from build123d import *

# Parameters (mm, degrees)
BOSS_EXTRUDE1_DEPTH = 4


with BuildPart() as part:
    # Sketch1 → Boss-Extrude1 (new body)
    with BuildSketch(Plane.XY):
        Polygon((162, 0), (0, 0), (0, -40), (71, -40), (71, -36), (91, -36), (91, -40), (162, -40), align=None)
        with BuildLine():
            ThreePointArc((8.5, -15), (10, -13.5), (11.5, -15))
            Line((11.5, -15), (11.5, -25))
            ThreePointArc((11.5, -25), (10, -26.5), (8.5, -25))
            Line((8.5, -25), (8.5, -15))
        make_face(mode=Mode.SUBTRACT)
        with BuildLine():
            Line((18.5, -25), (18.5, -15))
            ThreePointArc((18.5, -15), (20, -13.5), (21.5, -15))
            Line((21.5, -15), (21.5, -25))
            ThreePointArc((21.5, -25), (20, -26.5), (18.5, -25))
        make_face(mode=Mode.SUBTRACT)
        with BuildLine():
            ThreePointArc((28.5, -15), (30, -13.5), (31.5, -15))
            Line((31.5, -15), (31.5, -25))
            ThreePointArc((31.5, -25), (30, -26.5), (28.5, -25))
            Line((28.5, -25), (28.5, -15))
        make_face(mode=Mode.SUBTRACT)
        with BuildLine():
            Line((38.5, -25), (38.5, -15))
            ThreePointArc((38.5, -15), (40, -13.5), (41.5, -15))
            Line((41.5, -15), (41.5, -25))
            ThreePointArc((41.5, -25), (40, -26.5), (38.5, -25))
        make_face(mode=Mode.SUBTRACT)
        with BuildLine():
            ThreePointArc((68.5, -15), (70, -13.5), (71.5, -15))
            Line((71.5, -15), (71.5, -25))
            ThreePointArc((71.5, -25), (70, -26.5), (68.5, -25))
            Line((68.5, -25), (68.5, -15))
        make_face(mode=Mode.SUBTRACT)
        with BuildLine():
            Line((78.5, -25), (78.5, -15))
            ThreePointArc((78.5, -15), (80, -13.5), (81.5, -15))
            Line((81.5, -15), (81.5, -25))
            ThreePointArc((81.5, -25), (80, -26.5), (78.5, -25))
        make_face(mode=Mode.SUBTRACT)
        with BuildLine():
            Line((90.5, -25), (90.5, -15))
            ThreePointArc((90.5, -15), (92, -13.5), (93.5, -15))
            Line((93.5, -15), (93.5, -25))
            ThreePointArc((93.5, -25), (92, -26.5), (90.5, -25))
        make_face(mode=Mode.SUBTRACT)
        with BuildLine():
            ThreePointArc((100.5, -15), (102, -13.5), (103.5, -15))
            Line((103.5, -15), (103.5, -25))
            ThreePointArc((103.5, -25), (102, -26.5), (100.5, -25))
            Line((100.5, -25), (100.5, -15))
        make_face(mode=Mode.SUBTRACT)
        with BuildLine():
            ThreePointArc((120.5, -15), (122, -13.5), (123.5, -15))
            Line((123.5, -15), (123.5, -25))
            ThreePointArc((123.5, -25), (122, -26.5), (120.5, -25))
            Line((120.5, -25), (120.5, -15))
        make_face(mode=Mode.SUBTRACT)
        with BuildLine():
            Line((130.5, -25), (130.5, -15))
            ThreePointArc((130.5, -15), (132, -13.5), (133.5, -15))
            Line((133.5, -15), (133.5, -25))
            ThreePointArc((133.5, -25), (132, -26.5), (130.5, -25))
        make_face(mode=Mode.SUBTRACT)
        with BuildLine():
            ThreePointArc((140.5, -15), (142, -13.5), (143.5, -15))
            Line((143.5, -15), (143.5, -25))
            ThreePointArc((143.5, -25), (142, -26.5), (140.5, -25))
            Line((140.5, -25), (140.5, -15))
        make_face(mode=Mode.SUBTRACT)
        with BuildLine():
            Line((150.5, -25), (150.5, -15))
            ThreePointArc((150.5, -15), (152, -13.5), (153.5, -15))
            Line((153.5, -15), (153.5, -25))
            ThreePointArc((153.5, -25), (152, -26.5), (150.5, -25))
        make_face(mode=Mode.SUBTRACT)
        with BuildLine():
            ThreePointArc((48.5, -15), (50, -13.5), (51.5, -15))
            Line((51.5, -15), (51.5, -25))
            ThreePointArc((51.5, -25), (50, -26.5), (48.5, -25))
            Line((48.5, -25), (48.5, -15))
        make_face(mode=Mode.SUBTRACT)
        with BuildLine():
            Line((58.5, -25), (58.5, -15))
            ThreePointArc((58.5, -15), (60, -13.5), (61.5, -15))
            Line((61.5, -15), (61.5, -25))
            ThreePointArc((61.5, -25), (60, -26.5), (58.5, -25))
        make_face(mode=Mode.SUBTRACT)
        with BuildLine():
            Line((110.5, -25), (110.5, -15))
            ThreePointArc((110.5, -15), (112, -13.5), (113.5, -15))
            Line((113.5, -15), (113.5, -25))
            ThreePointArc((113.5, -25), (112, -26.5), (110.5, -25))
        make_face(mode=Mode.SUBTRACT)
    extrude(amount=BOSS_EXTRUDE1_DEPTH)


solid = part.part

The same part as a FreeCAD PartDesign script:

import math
import FreeCAD as App
import Part
import Sketcher

V = App.Vector
Q = App.Units.Quantity

doc = App.newDocument("Part")
body = doc.addObject("PartDesign::Body", "Body")

# Sketch on XY plane
sketch1 = body.newObject("Sketcher::SketchObject", "Sketch")
sketch1.AttachmentSupport = (doc.getObject("XY_Plane"), [""])
sketch1.MapMode = "FlatFace"
sketch1.addGeometry(Part.LineSegment(V(162, 0, 0), V(0, 0, 0)), False)
sketch1.addGeometry(Part.LineSegment(V(0, 0, 0), V(0, -40, 0)), False)
sketch1.addGeometry(Part.LineSegment(V(0, -40, 0), V(71, -40, 0)), False)
sketch1.addGeometry(Part.LineSegment(V(71, -40, 0), V(71, -36, 0)), False)
sketch1.addGeometry(Part.LineSegment(V(71, -36, 0), V(91, -36, 0)), False)
sketch1.addGeometry(Part.LineSegment(V(91, -36, 0), V(91, -40, 0)), False)
sketch1.addGeometry(Part.LineSegment(V(91, -40, 0), V(162, -40, 0)), False)
sketch1.addGeometry(Part.LineSegment(V(162, -40, 0), V(162, 0, 0)), False)
sketch1.addGeometry(Part.LineSegment(V(8.5, -25, 0), V(8.5, -15, 0)), False)
sketch1.addGeometry(Part.ArcOfCircle(Part.Circle(V(10, -15, 0), V(0, 0, 1), 1.5), math.radians(0), math.radians(180)), False)
sketch1.addGeometry(Part.LineSegment(V(11.5, -15, 0), V(11.5, -25, 0)), False)
sketch1.addGeometry(Part.ArcOfCircle(Part.Circle(V(10, -25, 0), V(0, 0, 1), 1.5), math.radians(180), math.radians(360)), False)
sketch1.addGeometry(Part.ArcOfCircle(Part.Circle(V(20, -25, 0), V(0, 0, 1), 1.5), math.radians(180), math.radians(360)), False)
sketch1.addGeometry(Part.LineSegment(V(18.5, -25, 0), V(18.5, -15, 0)), False)
sketch1.addGeometry(Part.ArcOfCircle(Part.Circle(V(20, -15, 0), V(0, 0, 1), 1.5), math.radians(0), math.radians(180)), False)
sketch1.addGeometry(Part.LineSegment(V(21.5, -15, 0), V(21.5, -25, 0)), False)
sketch1.addGeometry(Part.LineSegment(V(28.5, -25, 0), V(28.5, -15, 0)), False)
sketch1.addGeometry(Part.ArcOfCircle(Part.Circle(V(30, -15, 0), V(0, 0, 1), 1.5), math.radians(0), math.radians(180)), False)
sketch1.addGeometry(Part.LineSegment(V(31.5, -15, 0), V(31.5, -25, 0)), False)
sketch1.addGeometry(Part.ArcOfCircle(Part.Circle(V(30, -25, 0), V(0, 0, 1), 1.5), math.radians(180), math.radians(360)), False)
sketch1.addGeometry(Part.ArcOfCircle(Part.Circle(V(40, -25, 0), V(0, 0, 1), 1.5), math.radians(180), math.radians(360)), False)
sketch1.addGeometry(Part.LineSegment(V(38.5, -25, 0), V(38.5, -15, 0)), False)
sketch1.addGeometry(Part.ArcOfCircle(Part.Circle(V(40, -15, 0), V(0, 0, 1), 1.5), math.radians(0), math.radians(180)), False)
sketch1.addGeometry(Part.LineSegment(V(41.5, -15, 0), V(41.5, -25, 0)), False)
sketch1.addGeometry(Part.LineSegment(V(48.5, -25, 0), V(48.5, -15, 0)), False)
sketch1.addGeometry(Part.ArcOfCircle(Part.Circle(V(50, -15, 0), V(0, 0, 1), 1.5), math.radians(0), math.radians(180)), False)
sketch1.addGeometry(Part.LineSegment(V(51.5, -15, 0), V(51.5, -25, 0)), False)
sketch1.addGeometry(Part.ArcOfCircle(Part.Circle(V(50, -25, 0), V(0, 0, 1), 1.5), math.radians(180), math.radians(360)), False)
sketch1.addGeometry(Part.ArcOfCircle(Part.Circle(V(60, -25, 0), V(0, 0, 1), 1.5), math.radians(180), math.radians(360)), False)
sketch1.addGeometry(Part.LineSegment(V(58.5, -25, 0), V(58.5, -15, 0)), False)
sketch1.addGeometry(Part.ArcOfCircle(Part.Circle(V(60, -15, 0), V(0, 0, 1), 1.5), math.radians(0), math.radians(180)), False)
sketch1.addGeometry(Part.LineSegment(V(61.5, -15, 0), V(61.5, -25, 0)), False)
sketch1.addGeometry(Part.LineSegment(V(68.5, -25, 0), V(68.5, -15, 0)), False)
sketch1.addGeometry(Part.ArcOfCircle(Part.Circle(V(70, -15, 0), V(0, 0, 1), 1.5), math.radians(0), math.radians(180)), False)
sketch1.addGeometry(Part.LineSegment(V(71.5, -15, 0), V(71.5, -25, 0)), False)
sketch1.addGeometry(Part.ArcOfCircle(Part.Circle(V(70, -25, 0), V(0, 0, 1), 1.5), math.radians(180), math.radians(360)), False)
sketch1.addGeometry(Part.ArcOfCircle(Part.Circle(V(80, -25, 0), V(0, 0, 1), 1.5), math.radians(180), math.radians(360)), False)
sketch1.addGeometry(Part.LineSegment(V(78.5, -25, 0), V(78.5, -15, 0)), False)
sketch1.addGeometry(Part.ArcOfCircle(Part.Circle(V(80, -15, 0), V(0, 0, 1), 1.5), math.radians(0), math.radians(180)), False)
sketch1.addGeometry(Part.LineSegment(V(81.5, -15, 0), V(81.5, -25, 0)), False)
sketch1.addGeometry(Part.ArcOfCircle(Part.Circle(V(92, -25, 0), V(0, 0, 1), 1.5), math.radians(180), math.radians(360)), False)
sketch1.addGeometry(Part.LineSegment(V(90.5, -25, 0), V(90.5, -15, 0)), False)
sketch1.addGeometry(Part.ArcOfCircle(Part.Circle(V(92, -15, 0), V(0, 0, 1), 1.5), math.radians(0), math.radians(180)), False)
sketch1.addGeometry(Part.LineSegment(V(93.5, -15, 0), V(93.5, -25, 0)), False)
sketch1.addGeometry(Part.LineSegment(V(100.5, -25, 0), V(100.5, -15, 0)), False)
sketch1.addGeometry(Part.ArcOfCircle(Part.Circle(V(102, -15, 0), V(0, 0, 1), 1.5), math.radians(0), math.radians(180)), False)
sketch1.addGeometry(Part.LineSegment(V(103.5, -15, 0), V(103.5, -25, 0)), False)
sketch1.addGeometry(Part.ArcOfCircle(Part.Circle(V(102, -25, 0), V(0, 0, 1), 1.5), math.radians(180), math.radians(360)), False)
sketch1.addGeometry(Part.ArcOfCircle(Part.Circle(V(112, -25, 0), V(0, 0, 1), 1.5), math.radians(180), math.radians(360)), False)
sketch1.addGeometry(Part.LineSegment(V(110.5, -25, 0), V(110.5, -15, 0)), False)
sketch1.addGeometry(Part.ArcOfCircle(Part.Circle(V(112, -15, 0), V(0, 0, 1), 1.5), math.radians(0), math.radians(180)), False)
sketch1.addGeometry(Part.LineSegment(V(113.5, -15, 0), V(113.5, -25, 0)), False)
sketch1.addGeometry(Part.LineSegment(V(120.5, -25, 0), V(120.5, -15, 0)), False)
sketch1.addGeometry(Part.ArcOfCircle(Part.Circle(V(122, -15, 0), V(0, 0, 1), 1.5), math.radians(0), math.radians(180)), False)
sketch1.addGeometry(Part.LineSegment(V(123.5, -15, 0), V(123.5, -25, 0)), False)
sketch1.addGeometry(Part.ArcOfCircle(Part.Circle(V(122, -25, 0), V(0, 0, 1), 1.5), math.radians(180), math.radians(360)), False)
sketch1.addGeometry(Part.ArcOfCircle(Part.Circle(V(132, -25, 0), V(0, 0, 1), 1.5), math.radians(180), math.radians(360)), False)
sketch1.addGeometry(Part.LineSegment(V(130.5, -25, 0), V(130.5, -15, 0)), False)
sketch1.addGeometry(Part.ArcOfCircle(Part.Circle(V(132, -15, 0), V(0, 0, 1), 1.5), math.radians(0), math.radians(180)), False)
sketch1.addGeometry(Part.LineSegment(V(133.5, -15, 0), V(133.5, -25, 0)), False)
sketch1.addGeometry(Part.LineSegment(V(140.5, -25, 0), V(140.5, -15, 0)), False)
sketch1.addGeometry(Part.ArcOfCircle(Part.Circle(V(142, -15, 0), V(0, 0, 1), 1.5), math.radians(0), math.radians(180)), False)
sketch1.addGeometry(Part.LineSegment(V(143.5, -15, 0), V(143.5, -25, 0)), False)
sketch1.addGeometry(Part.ArcOfCircle(Part.Circle(V(142, -25, 0), V(0, 0, 1), 1.5), math.radians(180), math.radians(360)), False)
sketch1.addGeometry(Part.ArcOfCircle(Part.Circle(V(152, -25, 0), V(0, 0, 1), 1.5), math.radians(180), math.radians(360)), False)
sketch1.addGeometry(Part.LineSegment(V(150.5, -25, 0), V(150.5, -15, 0)), False)
sketch1.addGeometry(Part.ArcOfCircle(Part.Circle(V(152, -15, 0), V(0, 0, 1), 1.5), math.radians(0), math.radians(180)), False)
sketch1.addGeometry(Part.LineSegment(V(153.5, -15, 0), V(153.5, -25, 0)), False)
sketch1.addConstraint(Sketcher.Constraint("Coincident", 0, 2, 1, 1))
sketch1.addConstraint(Sketcher.Constraint("Coincident", 1, 2, 2, 1))
sketch1.addConstraint(Sketcher.Constraint("Coincident", 2, 2, 3, 1))
sketch1.addConstraint(Sketcher.Constraint("Coincident", 3, 2, 4, 1))
sketch1.addConstraint(Sketcher.Constraint("Coincident", 4, 2, 5, 1))
sketch1.addConstraint(Sketcher.Constraint("Coincident", 5, 2, 6, 1))
sketch1.addConstraint(Sketcher.Constraint("Coincident", 6, 2, 7, 1))
sketch1.addConstraint(Sketcher.Constraint("Coincident", 7, 2, 0, 1))
sketch1.addConstraint(Sketcher.Constraint("Tangent", 8, 2, 9, 2))
sketch1.addConstraint(Sketcher.Constraint("Tangent", 9, 1, 10, 1))
sketch1.addConstraint(Sketcher.Constraint("Tangent", 10, 2, 11, 2))
sketch1.addConstraint(Sketcher.Constraint("Tangent", 11, 1, 8, 1))
sketch1.addConstraint(Sketcher.Constraint("Tangent", 12, 1, 13, 1))
sketch1.addConstraint(Sketcher.Constraint("Tangent", 13, 2, 14, 2))
sketch1.addConstraint(Sketcher.Constraint("Tangent", 14, 1, 15, 1))
sketch1.addConstraint(Sketcher.Constraint("Tangent", 15, 2, 12, 2))
sketch1.addConstraint(Sketcher.Constraint("Tangent", 16, 2, 17, 2))
sketch1.addConstraint(Sketcher.Constraint("Tangent", 17, 1, 18, 1))
sketch1.addConstraint(Sketcher.Constraint("Tangent", 18, 2, 19, 2))
sketch1.addConstraint(Sketcher.Constraint("Tangent", 19, 1, 16, 1))
sketch1.addConstraint(Sketcher.Constraint("Tangent", 20, 1, 21, 1))
sketch1.addConstraint(Sketcher.Constraint("Tangent", 21, 2, 22, 2))
sketch1.addConstraint(Sketcher.Constraint("Tangent", 22, 1, 23, 1))
sketch1.addConstraint(Sketcher.Constraint("Tangent", 23, 2, 20, 2))
sketch1.addConstraint(Sketcher.Constraint("Tangent", 24, 2, 25, 2))
sketch1.addConstraint(Sketcher.Constraint("Tangent", 25, 1, 26, 1))
sketch1.addConstraint(Sketcher.Constraint("Tangent", 26, 2, 27, 2))
sketch1.addConstraint(Sketcher.Constraint("Tangent", 27, 1, 24, 1))
sketch1.addConstraint(Sketcher.Constraint("Tangent", 28, 1, 29, 1))
sketch1.addConstraint(Sketcher.Constraint("Tangent", 29, 2, 30, 2))
sketch1.addConstraint(Sketcher.Constraint("Tangent", 30, 1, 31, 1))
sketch1.addConstraint(Sketcher.Constraint("Tangent", 31, 2, 28, 2))
sketch1.addConstraint(Sketcher.Constraint("Tangent", 32, 2, 33, 2))
sketch1.addConstraint(Sketcher.Constraint("Tangent", 33, 1, 34, 1))
sketch1.addConstraint(Sketcher.Constraint("Tangent", 34, 2, 35, 2))
sketch1.addConstraint(Sketcher.Constraint("Tangent", 35, 1, 32, 1))
sketch1.addConstraint(Sketcher.Constraint("Tangent", 36, 1, 37, 1))
sketch1.addConstraint(Sketcher.Constraint("Tangent", 37, 2, 38, 2))
sketch1.addConstraint(Sketcher.Constraint("Tangent", 38, 1, 39, 1))
sketch1.addConstraint(Sketcher.Constraint("Tangent", 39, 2, 36, 2))
sketch1.addConstraint(Sketcher.Constraint("Tangent", 40, 1, 41, 1))
sketch1.addConstraint(Sketcher.Constraint("Tangent", 41, 2, 42, 2))
sketch1.addConstraint(Sketcher.Constraint("Tangent", 42, 1, 43, 1))
sketch1.addConstraint(Sketcher.Constraint("Tangent", 43, 2, 40, 2))
sketch1.addConstraint(Sketcher.Constraint("Tangent", 44, 2, 45, 2))
sketch1.addConstraint(Sketcher.Constraint("Tangent", 45, 1, 46, 1))
sketch1.addConstraint(Sketcher.Constraint("Tangent", 46, 2, 47, 2))
sketch1.addConstraint(Sketcher.Constraint("Tangent", 47, 1, 44, 1))
sketch1.addConstraint(Sketcher.Constraint("Tangent", 48, 1, 49, 1))
sketch1.addConstraint(Sketcher.Constraint("Tangent", 49, 2, 50, 2))
sketch1.addConstraint(Sketcher.Constraint("Tangent", 50, 1, 51, 1))
sketch1.addConstraint(Sketcher.Constraint("Tangent", 51, 2, 48, 2))
sketch1.addConstraint(Sketcher.Constraint("Tangent", 52, 2, 53, 2))
sketch1.addConstraint(Sketcher.Constraint("Tangent", 53, 1, 54, 1))
sketch1.addConstraint(Sketcher.Constraint("Tangent", 54, 2, 55, 2))
sketch1.addConstraint(Sketcher.Constraint("Tangent", 55, 1, 52, 1))
sketch1.addConstraint(Sketcher.Constraint("Tangent", 56, 1, 57, 1))
sketch1.addConstraint(Sketcher.Constraint("Tangent", 57, 2, 58, 2))
sketch1.addConstraint(Sketcher.Constraint("Tangent", 58, 1, 59, 1))
sketch1.addConstraint(Sketcher.Constraint("Tangent", 59, 2, 56, 2))
sketch1.addConstraint(Sketcher.Constraint("Tangent", 60, 2, 61, 2))
sketch1.addConstraint(Sketcher.Constraint("Tangent", 61, 1, 62, 1))
sketch1.addConstraint(Sketcher.Constraint("Tangent", 62, 2, 63, 2))
sketch1.addConstraint(Sketcher.Constraint("Tangent", 63, 1, 60, 1))
sketch1.addConstraint(Sketcher.Constraint("Tangent", 64, 1, 65, 1))
sketch1.addConstraint(Sketcher.Constraint("Tangent", 65, 2, 66, 2))
sketch1.addConstraint(Sketcher.Constraint("Tangent", 66, 1, 67, 1))
sketch1.addConstraint(Sketcher.Constraint("Tangent", 67, 2, 64, 2))
sketch1.addConstraint(Sketcher.Constraint("Horizontal", 0))
sketch1.addConstraint(Sketcher.Constraint("Vertical", 1))
sketch1.addConstraint(Sketcher.Constraint("Horizontal", 2))
sketch1.addConstraint(Sketcher.Constraint("Vertical", 3))
sketch1.addConstraint(Sketcher.Constraint("Horizontal", 4))
sketch1.addConstraint(Sketcher.Constraint("Vertical", 5))
sketch1.addConstraint(Sketcher.Constraint("Horizontal", 6))
sketch1.addConstraint(Sketcher.Constraint("Vertical", 7))
sketch1.addConstraint(Sketcher.Constraint("Vertical", 8))
sketch1.addConstraint(Sketcher.Constraint("Vertical", 10))
sketch1.addConstraint(Sketcher.Constraint("Vertical", 13))
sketch1.addConstraint(Sketcher.Constraint("Vertical", 15))
sketch1.addConstraint(Sketcher.Constraint("Vertical", 16))
sketch1.addConstraint(Sketcher.Constraint("Vertical", 18))
sketch1.addConstraint(Sketcher.Constraint("Vertical", 21))
sketch1.addConstraint(Sketcher.Constraint("Vertical", 23))
sketch1.addConstraint(Sketcher.Constraint("Vertical", 24))
sketch1.addConstraint(Sketcher.Constraint("Vertical", 26))
sketch1.addConstraint(Sketcher.Constraint("Vertical", 29))
sketch1.addConstraint(Sketcher.Constraint("Vertical", 31))
sketch1.addConstraint(Sketcher.Constraint("Vertical", 32))
sketch1.addConstraint(Sketcher.Constraint("Vertical", 34))
sketch1.addConstraint(Sketcher.Constraint("Vertical", 37))
sketch1.addConstraint(Sketcher.Constraint("Vertical", 39))
sketch1.addConstraint(Sketcher.Constraint("Vertical", 41))
sketch1.addConstraint(Sketcher.Constraint("Vertical", 43))
sketch1.addConstraint(Sketcher.Constraint("Vertical", 44))
sketch1.addConstraint(Sketcher.Constraint("Vertical", 46))
sketch1.addConstraint(Sketcher.Constraint("Vertical", 49))
sketch1.addConstraint(Sketcher.Constraint("Vertical", 51))
sketch1.addConstraint(Sketcher.Constraint("Vertical", 52))
sketch1.addConstraint(Sketcher.Constraint("Vertical", 54))
sketch1.addConstraint(Sketcher.Constraint("Vertical", 57))
sketch1.addConstraint(Sketcher.Constraint("Vertical", 59))
sketch1.addConstraint(Sketcher.Constraint("Vertical", 60))
sketch1.addConstraint(Sketcher.Constraint("Vertical", 62))
sketch1.addConstraint(Sketcher.Constraint("Vertical", 65))
sketch1.addConstraint(Sketcher.Constraint("Vertical", 67))
sketch1.addConstraint(Sketcher.Constraint("Coincident", 0, 2, -1, 1))
sketch1.addConstraint(Sketcher.Constraint("Equal", 11, 12))
sketch1.addConstraint(Sketcher.Constraint("Equal", 14, 17))
sketch1.addConstraint(Sketcher.Constraint("Equal", 19, 20))
sketch1.addConstraint(Sketcher.Constraint("Equal", 22, 25))
sketch1.addConstraint(Sketcher.Constraint("Equal", 27, 28))
sketch1.addConstraint(Sketcher.Constraint("Equal", 30, 33))
sketch1.addConstraint(Sketcher.Constraint("Equal", 35, 36))
sketch1.addConstraint(Sketcher.Constraint("Equal", 38, 40))
sketch1.addConstraint(Sketcher.Constraint("Equal", 42, 45))
sketch1.addConstraint(Sketcher.Constraint("Equal", 47, 48))
sketch1.addConstraint(Sketcher.Constraint("Equal", 50, 53))
sketch1.addConstraint(Sketcher.Constraint("Equal", 55, 56))
sketch1.addConstraint(Sketcher.Constraint("Equal", 58, 61))
sketch1.addConstraint(Sketcher.Constraint("Equal", 63, 64))
sketch1.addConstraint(Sketcher.Constraint("Horizontal", 11, 3, 12, 3))
sketch1.addConstraint(Sketcher.Constraint("Horizontal", 9, 3, 14, 3))
sketch1.addConstraint(Sketcher.Constraint("Horizontal", 14, 3, 17, 3))
sketch1.addConstraint(Sketcher.Constraint("Horizontal", 12, 3, 19, 3))
sketch1.addConstraint(Sketcher.Constraint("Horizontal", 19, 3, 20, 3))
sketch1.addConstraint(Sketcher.Constraint("Horizontal", 17, 3, 22, 3))
sketch1.addConstraint(Sketcher.Constraint("Horizontal", 22, 3, 25, 3))
sketch1.addConstraint(Sketcher.Constraint("Horizontal", 20, 3, 27, 3))
sketch1.addConstraint(Sketcher.Constraint("Horizontal", 27, 3, 28, 3))
sketch1.addConstraint(Sketcher.Constraint("Horizontal", 25, 3, 30, 3))
sketch1.addConstraint(Sketcher.Constraint("Horizontal", 30, 3, 33, 3))
sketch1.addConstraint(Sketcher.Constraint("Horizontal", 28, 3, 35, 3))
sketch1.addConstraint(Sketcher.Constraint("Horizontal", 35, 3, 36, 3))
sketch1.addConstraint(Sketcher.Constraint("Horizontal", 33, 3, 38, 3))
sketch1.addConstraint(Sketcher.Constraint("Horizontal", 36, 3, 40, 3))
sketch1.addConstraint(Sketcher.Constraint("Horizontal", 38, 3, 42, 3))
sketch1.addConstraint(Sketcher.Constraint("Horizontal", 42, 3, 45, 3))
sketch1.addConstraint(Sketcher.Constraint("Horizontal", 40, 3, 47, 3))
sketch1.addConstraint(Sketcher.Constraint("Horizontal", 47, 3, 48, 3))
sketch1.addConstraint(Sketcher.Constraint("Horizontal", 45, 3, 50, 3))
sketch1.addConstraint(Sketcher.Constraint("Horizontal", 50, 3, 53, 3))
sketch1.addConstraint(Sketcher.Constraint("Horizontal", 48, 3, 55, 3))
sketch1.addConstraint(Sketcher.Constraint("Horizontal", 55, 3, 56, 3))
sketch1.addConstraint(Sketcher.Constraint("Horizontal", 53, 3, 58, 3))
sketch1.addConstraint(Sketcher.Constraint("Horizontal", 58, 3, 61, 3))
sketch1.addConstraint(Sketcher.Constraint("Horizontal", 56, 3, 63, 3))
sketch1.addConstraint(Sketcher.Constraint("Horizontal", 63, 3, 64, 3))
sketch1.addConstraint(Sketcher.Constraint("Horizontal", 61, 3, 66, 3))
sketch1.addConstraint(Sketcher.Constraint("Horizontal", 2, 2, 5, 2))
sketch1.addConstraint(Sketcher.Constraint("Equal", 2, 6))
sketch1.addConstraint(Sketcher.Constraint("Radius", 9, Q("1.5 mm")))
sketch1.addConstraint(Sketcher.Constraint("DistanceX", 0, 2, 0, 1, Q("162 mm")))
sketch1.addConstraint(Sketcher.Constraint("DistanceX", 2, 1, 2, 2, Q("71 mm")))
sketch1.addConstraint(Sketcher.Constraint("DistanceY", 1, 2, 1, 1, Q("40 mm")))
sketch1.addConstraint(Sketcher.Constraint("DistanceY", 3, 1, 3, 2, Q("4 mm")))
sketch1.addConstraint(Sketcher.Constraint("DistanceY", 8, 1, 8, 2, Q("10 mm")))
sketch1.addConstraint(Sketcher.Constraint("DistanceX", -1, 1, 9, 3, Q("10 mm")))
sketch1.addConstraint(Sketcher.Constraint("DistanceY", 9, 3, -1, 1, Q("15 mm")))
sketch1.addConstraint(Sketcher.Constraint("DistanceX", -1, 1, 12, 3, Q("20 mm")))
sketch1.addConstraint(Sketcher.Constraint("DistanceX", -1, 1, 17, 3, Q("30 mm")))
sketch1.addConstraint(Sketcher.Constraint("DistanceX", -1, 1, 20, 3, Q("40 mm")))
sketch1.addConstraint(Sketcher.Constraint("DistanceX", -1, 1, 25, 3, Q("50 mm")))
sketch1.addConstraint(Sketcher.Constraint("DistanceX", -1, 1, 28, 3, Q("60 mm")))
sketch1.addConstraint(Sketcher.Constraint("DistanceX", -1, 1, 33, 3, Q("70 mm")))
sketch1.addConstraint(Sketcher.Constraint("DistanceX", -1, 1, 36, 3, Q("80 mm")))
sketch1.addConstraint(Sketcher.Constraint("DistanceX", -1, 1, 40, 3, Q("92 mm")))
sketch1.addConstraint(Sketcher.Constraint("DistanceX", -1, 1, 45, 3, Q("102 mm")))
sketch1.addConstraint(Sketcher.Constraint("DistanceX", -1, 1, 48, 3, Q("112 mm")))
sketch1.addConstraint(Sketcher.Constraint("DistanceX", -1, 1, 53, 3, Q("122 mm")))
sketch1.addConstraint(Sketcher.Constraint("DistanceX", -1, 1, 56, 3, Q("132 mm")))
sketch1.addConstraint(Sketcher.Constraint("DistanceX", -1, 1, 61, 3, Q("142 mm")))
sketch1.addConstraint(Sketcher.Constraint("DistanceX", -1, 1, 64, 3, Q("152 mm")))
pad1 = body.newObject("PartDesign::Pad", "Pad")
pad1.Profile = sketch1
pad1.Length = 4

doc.recompute()
